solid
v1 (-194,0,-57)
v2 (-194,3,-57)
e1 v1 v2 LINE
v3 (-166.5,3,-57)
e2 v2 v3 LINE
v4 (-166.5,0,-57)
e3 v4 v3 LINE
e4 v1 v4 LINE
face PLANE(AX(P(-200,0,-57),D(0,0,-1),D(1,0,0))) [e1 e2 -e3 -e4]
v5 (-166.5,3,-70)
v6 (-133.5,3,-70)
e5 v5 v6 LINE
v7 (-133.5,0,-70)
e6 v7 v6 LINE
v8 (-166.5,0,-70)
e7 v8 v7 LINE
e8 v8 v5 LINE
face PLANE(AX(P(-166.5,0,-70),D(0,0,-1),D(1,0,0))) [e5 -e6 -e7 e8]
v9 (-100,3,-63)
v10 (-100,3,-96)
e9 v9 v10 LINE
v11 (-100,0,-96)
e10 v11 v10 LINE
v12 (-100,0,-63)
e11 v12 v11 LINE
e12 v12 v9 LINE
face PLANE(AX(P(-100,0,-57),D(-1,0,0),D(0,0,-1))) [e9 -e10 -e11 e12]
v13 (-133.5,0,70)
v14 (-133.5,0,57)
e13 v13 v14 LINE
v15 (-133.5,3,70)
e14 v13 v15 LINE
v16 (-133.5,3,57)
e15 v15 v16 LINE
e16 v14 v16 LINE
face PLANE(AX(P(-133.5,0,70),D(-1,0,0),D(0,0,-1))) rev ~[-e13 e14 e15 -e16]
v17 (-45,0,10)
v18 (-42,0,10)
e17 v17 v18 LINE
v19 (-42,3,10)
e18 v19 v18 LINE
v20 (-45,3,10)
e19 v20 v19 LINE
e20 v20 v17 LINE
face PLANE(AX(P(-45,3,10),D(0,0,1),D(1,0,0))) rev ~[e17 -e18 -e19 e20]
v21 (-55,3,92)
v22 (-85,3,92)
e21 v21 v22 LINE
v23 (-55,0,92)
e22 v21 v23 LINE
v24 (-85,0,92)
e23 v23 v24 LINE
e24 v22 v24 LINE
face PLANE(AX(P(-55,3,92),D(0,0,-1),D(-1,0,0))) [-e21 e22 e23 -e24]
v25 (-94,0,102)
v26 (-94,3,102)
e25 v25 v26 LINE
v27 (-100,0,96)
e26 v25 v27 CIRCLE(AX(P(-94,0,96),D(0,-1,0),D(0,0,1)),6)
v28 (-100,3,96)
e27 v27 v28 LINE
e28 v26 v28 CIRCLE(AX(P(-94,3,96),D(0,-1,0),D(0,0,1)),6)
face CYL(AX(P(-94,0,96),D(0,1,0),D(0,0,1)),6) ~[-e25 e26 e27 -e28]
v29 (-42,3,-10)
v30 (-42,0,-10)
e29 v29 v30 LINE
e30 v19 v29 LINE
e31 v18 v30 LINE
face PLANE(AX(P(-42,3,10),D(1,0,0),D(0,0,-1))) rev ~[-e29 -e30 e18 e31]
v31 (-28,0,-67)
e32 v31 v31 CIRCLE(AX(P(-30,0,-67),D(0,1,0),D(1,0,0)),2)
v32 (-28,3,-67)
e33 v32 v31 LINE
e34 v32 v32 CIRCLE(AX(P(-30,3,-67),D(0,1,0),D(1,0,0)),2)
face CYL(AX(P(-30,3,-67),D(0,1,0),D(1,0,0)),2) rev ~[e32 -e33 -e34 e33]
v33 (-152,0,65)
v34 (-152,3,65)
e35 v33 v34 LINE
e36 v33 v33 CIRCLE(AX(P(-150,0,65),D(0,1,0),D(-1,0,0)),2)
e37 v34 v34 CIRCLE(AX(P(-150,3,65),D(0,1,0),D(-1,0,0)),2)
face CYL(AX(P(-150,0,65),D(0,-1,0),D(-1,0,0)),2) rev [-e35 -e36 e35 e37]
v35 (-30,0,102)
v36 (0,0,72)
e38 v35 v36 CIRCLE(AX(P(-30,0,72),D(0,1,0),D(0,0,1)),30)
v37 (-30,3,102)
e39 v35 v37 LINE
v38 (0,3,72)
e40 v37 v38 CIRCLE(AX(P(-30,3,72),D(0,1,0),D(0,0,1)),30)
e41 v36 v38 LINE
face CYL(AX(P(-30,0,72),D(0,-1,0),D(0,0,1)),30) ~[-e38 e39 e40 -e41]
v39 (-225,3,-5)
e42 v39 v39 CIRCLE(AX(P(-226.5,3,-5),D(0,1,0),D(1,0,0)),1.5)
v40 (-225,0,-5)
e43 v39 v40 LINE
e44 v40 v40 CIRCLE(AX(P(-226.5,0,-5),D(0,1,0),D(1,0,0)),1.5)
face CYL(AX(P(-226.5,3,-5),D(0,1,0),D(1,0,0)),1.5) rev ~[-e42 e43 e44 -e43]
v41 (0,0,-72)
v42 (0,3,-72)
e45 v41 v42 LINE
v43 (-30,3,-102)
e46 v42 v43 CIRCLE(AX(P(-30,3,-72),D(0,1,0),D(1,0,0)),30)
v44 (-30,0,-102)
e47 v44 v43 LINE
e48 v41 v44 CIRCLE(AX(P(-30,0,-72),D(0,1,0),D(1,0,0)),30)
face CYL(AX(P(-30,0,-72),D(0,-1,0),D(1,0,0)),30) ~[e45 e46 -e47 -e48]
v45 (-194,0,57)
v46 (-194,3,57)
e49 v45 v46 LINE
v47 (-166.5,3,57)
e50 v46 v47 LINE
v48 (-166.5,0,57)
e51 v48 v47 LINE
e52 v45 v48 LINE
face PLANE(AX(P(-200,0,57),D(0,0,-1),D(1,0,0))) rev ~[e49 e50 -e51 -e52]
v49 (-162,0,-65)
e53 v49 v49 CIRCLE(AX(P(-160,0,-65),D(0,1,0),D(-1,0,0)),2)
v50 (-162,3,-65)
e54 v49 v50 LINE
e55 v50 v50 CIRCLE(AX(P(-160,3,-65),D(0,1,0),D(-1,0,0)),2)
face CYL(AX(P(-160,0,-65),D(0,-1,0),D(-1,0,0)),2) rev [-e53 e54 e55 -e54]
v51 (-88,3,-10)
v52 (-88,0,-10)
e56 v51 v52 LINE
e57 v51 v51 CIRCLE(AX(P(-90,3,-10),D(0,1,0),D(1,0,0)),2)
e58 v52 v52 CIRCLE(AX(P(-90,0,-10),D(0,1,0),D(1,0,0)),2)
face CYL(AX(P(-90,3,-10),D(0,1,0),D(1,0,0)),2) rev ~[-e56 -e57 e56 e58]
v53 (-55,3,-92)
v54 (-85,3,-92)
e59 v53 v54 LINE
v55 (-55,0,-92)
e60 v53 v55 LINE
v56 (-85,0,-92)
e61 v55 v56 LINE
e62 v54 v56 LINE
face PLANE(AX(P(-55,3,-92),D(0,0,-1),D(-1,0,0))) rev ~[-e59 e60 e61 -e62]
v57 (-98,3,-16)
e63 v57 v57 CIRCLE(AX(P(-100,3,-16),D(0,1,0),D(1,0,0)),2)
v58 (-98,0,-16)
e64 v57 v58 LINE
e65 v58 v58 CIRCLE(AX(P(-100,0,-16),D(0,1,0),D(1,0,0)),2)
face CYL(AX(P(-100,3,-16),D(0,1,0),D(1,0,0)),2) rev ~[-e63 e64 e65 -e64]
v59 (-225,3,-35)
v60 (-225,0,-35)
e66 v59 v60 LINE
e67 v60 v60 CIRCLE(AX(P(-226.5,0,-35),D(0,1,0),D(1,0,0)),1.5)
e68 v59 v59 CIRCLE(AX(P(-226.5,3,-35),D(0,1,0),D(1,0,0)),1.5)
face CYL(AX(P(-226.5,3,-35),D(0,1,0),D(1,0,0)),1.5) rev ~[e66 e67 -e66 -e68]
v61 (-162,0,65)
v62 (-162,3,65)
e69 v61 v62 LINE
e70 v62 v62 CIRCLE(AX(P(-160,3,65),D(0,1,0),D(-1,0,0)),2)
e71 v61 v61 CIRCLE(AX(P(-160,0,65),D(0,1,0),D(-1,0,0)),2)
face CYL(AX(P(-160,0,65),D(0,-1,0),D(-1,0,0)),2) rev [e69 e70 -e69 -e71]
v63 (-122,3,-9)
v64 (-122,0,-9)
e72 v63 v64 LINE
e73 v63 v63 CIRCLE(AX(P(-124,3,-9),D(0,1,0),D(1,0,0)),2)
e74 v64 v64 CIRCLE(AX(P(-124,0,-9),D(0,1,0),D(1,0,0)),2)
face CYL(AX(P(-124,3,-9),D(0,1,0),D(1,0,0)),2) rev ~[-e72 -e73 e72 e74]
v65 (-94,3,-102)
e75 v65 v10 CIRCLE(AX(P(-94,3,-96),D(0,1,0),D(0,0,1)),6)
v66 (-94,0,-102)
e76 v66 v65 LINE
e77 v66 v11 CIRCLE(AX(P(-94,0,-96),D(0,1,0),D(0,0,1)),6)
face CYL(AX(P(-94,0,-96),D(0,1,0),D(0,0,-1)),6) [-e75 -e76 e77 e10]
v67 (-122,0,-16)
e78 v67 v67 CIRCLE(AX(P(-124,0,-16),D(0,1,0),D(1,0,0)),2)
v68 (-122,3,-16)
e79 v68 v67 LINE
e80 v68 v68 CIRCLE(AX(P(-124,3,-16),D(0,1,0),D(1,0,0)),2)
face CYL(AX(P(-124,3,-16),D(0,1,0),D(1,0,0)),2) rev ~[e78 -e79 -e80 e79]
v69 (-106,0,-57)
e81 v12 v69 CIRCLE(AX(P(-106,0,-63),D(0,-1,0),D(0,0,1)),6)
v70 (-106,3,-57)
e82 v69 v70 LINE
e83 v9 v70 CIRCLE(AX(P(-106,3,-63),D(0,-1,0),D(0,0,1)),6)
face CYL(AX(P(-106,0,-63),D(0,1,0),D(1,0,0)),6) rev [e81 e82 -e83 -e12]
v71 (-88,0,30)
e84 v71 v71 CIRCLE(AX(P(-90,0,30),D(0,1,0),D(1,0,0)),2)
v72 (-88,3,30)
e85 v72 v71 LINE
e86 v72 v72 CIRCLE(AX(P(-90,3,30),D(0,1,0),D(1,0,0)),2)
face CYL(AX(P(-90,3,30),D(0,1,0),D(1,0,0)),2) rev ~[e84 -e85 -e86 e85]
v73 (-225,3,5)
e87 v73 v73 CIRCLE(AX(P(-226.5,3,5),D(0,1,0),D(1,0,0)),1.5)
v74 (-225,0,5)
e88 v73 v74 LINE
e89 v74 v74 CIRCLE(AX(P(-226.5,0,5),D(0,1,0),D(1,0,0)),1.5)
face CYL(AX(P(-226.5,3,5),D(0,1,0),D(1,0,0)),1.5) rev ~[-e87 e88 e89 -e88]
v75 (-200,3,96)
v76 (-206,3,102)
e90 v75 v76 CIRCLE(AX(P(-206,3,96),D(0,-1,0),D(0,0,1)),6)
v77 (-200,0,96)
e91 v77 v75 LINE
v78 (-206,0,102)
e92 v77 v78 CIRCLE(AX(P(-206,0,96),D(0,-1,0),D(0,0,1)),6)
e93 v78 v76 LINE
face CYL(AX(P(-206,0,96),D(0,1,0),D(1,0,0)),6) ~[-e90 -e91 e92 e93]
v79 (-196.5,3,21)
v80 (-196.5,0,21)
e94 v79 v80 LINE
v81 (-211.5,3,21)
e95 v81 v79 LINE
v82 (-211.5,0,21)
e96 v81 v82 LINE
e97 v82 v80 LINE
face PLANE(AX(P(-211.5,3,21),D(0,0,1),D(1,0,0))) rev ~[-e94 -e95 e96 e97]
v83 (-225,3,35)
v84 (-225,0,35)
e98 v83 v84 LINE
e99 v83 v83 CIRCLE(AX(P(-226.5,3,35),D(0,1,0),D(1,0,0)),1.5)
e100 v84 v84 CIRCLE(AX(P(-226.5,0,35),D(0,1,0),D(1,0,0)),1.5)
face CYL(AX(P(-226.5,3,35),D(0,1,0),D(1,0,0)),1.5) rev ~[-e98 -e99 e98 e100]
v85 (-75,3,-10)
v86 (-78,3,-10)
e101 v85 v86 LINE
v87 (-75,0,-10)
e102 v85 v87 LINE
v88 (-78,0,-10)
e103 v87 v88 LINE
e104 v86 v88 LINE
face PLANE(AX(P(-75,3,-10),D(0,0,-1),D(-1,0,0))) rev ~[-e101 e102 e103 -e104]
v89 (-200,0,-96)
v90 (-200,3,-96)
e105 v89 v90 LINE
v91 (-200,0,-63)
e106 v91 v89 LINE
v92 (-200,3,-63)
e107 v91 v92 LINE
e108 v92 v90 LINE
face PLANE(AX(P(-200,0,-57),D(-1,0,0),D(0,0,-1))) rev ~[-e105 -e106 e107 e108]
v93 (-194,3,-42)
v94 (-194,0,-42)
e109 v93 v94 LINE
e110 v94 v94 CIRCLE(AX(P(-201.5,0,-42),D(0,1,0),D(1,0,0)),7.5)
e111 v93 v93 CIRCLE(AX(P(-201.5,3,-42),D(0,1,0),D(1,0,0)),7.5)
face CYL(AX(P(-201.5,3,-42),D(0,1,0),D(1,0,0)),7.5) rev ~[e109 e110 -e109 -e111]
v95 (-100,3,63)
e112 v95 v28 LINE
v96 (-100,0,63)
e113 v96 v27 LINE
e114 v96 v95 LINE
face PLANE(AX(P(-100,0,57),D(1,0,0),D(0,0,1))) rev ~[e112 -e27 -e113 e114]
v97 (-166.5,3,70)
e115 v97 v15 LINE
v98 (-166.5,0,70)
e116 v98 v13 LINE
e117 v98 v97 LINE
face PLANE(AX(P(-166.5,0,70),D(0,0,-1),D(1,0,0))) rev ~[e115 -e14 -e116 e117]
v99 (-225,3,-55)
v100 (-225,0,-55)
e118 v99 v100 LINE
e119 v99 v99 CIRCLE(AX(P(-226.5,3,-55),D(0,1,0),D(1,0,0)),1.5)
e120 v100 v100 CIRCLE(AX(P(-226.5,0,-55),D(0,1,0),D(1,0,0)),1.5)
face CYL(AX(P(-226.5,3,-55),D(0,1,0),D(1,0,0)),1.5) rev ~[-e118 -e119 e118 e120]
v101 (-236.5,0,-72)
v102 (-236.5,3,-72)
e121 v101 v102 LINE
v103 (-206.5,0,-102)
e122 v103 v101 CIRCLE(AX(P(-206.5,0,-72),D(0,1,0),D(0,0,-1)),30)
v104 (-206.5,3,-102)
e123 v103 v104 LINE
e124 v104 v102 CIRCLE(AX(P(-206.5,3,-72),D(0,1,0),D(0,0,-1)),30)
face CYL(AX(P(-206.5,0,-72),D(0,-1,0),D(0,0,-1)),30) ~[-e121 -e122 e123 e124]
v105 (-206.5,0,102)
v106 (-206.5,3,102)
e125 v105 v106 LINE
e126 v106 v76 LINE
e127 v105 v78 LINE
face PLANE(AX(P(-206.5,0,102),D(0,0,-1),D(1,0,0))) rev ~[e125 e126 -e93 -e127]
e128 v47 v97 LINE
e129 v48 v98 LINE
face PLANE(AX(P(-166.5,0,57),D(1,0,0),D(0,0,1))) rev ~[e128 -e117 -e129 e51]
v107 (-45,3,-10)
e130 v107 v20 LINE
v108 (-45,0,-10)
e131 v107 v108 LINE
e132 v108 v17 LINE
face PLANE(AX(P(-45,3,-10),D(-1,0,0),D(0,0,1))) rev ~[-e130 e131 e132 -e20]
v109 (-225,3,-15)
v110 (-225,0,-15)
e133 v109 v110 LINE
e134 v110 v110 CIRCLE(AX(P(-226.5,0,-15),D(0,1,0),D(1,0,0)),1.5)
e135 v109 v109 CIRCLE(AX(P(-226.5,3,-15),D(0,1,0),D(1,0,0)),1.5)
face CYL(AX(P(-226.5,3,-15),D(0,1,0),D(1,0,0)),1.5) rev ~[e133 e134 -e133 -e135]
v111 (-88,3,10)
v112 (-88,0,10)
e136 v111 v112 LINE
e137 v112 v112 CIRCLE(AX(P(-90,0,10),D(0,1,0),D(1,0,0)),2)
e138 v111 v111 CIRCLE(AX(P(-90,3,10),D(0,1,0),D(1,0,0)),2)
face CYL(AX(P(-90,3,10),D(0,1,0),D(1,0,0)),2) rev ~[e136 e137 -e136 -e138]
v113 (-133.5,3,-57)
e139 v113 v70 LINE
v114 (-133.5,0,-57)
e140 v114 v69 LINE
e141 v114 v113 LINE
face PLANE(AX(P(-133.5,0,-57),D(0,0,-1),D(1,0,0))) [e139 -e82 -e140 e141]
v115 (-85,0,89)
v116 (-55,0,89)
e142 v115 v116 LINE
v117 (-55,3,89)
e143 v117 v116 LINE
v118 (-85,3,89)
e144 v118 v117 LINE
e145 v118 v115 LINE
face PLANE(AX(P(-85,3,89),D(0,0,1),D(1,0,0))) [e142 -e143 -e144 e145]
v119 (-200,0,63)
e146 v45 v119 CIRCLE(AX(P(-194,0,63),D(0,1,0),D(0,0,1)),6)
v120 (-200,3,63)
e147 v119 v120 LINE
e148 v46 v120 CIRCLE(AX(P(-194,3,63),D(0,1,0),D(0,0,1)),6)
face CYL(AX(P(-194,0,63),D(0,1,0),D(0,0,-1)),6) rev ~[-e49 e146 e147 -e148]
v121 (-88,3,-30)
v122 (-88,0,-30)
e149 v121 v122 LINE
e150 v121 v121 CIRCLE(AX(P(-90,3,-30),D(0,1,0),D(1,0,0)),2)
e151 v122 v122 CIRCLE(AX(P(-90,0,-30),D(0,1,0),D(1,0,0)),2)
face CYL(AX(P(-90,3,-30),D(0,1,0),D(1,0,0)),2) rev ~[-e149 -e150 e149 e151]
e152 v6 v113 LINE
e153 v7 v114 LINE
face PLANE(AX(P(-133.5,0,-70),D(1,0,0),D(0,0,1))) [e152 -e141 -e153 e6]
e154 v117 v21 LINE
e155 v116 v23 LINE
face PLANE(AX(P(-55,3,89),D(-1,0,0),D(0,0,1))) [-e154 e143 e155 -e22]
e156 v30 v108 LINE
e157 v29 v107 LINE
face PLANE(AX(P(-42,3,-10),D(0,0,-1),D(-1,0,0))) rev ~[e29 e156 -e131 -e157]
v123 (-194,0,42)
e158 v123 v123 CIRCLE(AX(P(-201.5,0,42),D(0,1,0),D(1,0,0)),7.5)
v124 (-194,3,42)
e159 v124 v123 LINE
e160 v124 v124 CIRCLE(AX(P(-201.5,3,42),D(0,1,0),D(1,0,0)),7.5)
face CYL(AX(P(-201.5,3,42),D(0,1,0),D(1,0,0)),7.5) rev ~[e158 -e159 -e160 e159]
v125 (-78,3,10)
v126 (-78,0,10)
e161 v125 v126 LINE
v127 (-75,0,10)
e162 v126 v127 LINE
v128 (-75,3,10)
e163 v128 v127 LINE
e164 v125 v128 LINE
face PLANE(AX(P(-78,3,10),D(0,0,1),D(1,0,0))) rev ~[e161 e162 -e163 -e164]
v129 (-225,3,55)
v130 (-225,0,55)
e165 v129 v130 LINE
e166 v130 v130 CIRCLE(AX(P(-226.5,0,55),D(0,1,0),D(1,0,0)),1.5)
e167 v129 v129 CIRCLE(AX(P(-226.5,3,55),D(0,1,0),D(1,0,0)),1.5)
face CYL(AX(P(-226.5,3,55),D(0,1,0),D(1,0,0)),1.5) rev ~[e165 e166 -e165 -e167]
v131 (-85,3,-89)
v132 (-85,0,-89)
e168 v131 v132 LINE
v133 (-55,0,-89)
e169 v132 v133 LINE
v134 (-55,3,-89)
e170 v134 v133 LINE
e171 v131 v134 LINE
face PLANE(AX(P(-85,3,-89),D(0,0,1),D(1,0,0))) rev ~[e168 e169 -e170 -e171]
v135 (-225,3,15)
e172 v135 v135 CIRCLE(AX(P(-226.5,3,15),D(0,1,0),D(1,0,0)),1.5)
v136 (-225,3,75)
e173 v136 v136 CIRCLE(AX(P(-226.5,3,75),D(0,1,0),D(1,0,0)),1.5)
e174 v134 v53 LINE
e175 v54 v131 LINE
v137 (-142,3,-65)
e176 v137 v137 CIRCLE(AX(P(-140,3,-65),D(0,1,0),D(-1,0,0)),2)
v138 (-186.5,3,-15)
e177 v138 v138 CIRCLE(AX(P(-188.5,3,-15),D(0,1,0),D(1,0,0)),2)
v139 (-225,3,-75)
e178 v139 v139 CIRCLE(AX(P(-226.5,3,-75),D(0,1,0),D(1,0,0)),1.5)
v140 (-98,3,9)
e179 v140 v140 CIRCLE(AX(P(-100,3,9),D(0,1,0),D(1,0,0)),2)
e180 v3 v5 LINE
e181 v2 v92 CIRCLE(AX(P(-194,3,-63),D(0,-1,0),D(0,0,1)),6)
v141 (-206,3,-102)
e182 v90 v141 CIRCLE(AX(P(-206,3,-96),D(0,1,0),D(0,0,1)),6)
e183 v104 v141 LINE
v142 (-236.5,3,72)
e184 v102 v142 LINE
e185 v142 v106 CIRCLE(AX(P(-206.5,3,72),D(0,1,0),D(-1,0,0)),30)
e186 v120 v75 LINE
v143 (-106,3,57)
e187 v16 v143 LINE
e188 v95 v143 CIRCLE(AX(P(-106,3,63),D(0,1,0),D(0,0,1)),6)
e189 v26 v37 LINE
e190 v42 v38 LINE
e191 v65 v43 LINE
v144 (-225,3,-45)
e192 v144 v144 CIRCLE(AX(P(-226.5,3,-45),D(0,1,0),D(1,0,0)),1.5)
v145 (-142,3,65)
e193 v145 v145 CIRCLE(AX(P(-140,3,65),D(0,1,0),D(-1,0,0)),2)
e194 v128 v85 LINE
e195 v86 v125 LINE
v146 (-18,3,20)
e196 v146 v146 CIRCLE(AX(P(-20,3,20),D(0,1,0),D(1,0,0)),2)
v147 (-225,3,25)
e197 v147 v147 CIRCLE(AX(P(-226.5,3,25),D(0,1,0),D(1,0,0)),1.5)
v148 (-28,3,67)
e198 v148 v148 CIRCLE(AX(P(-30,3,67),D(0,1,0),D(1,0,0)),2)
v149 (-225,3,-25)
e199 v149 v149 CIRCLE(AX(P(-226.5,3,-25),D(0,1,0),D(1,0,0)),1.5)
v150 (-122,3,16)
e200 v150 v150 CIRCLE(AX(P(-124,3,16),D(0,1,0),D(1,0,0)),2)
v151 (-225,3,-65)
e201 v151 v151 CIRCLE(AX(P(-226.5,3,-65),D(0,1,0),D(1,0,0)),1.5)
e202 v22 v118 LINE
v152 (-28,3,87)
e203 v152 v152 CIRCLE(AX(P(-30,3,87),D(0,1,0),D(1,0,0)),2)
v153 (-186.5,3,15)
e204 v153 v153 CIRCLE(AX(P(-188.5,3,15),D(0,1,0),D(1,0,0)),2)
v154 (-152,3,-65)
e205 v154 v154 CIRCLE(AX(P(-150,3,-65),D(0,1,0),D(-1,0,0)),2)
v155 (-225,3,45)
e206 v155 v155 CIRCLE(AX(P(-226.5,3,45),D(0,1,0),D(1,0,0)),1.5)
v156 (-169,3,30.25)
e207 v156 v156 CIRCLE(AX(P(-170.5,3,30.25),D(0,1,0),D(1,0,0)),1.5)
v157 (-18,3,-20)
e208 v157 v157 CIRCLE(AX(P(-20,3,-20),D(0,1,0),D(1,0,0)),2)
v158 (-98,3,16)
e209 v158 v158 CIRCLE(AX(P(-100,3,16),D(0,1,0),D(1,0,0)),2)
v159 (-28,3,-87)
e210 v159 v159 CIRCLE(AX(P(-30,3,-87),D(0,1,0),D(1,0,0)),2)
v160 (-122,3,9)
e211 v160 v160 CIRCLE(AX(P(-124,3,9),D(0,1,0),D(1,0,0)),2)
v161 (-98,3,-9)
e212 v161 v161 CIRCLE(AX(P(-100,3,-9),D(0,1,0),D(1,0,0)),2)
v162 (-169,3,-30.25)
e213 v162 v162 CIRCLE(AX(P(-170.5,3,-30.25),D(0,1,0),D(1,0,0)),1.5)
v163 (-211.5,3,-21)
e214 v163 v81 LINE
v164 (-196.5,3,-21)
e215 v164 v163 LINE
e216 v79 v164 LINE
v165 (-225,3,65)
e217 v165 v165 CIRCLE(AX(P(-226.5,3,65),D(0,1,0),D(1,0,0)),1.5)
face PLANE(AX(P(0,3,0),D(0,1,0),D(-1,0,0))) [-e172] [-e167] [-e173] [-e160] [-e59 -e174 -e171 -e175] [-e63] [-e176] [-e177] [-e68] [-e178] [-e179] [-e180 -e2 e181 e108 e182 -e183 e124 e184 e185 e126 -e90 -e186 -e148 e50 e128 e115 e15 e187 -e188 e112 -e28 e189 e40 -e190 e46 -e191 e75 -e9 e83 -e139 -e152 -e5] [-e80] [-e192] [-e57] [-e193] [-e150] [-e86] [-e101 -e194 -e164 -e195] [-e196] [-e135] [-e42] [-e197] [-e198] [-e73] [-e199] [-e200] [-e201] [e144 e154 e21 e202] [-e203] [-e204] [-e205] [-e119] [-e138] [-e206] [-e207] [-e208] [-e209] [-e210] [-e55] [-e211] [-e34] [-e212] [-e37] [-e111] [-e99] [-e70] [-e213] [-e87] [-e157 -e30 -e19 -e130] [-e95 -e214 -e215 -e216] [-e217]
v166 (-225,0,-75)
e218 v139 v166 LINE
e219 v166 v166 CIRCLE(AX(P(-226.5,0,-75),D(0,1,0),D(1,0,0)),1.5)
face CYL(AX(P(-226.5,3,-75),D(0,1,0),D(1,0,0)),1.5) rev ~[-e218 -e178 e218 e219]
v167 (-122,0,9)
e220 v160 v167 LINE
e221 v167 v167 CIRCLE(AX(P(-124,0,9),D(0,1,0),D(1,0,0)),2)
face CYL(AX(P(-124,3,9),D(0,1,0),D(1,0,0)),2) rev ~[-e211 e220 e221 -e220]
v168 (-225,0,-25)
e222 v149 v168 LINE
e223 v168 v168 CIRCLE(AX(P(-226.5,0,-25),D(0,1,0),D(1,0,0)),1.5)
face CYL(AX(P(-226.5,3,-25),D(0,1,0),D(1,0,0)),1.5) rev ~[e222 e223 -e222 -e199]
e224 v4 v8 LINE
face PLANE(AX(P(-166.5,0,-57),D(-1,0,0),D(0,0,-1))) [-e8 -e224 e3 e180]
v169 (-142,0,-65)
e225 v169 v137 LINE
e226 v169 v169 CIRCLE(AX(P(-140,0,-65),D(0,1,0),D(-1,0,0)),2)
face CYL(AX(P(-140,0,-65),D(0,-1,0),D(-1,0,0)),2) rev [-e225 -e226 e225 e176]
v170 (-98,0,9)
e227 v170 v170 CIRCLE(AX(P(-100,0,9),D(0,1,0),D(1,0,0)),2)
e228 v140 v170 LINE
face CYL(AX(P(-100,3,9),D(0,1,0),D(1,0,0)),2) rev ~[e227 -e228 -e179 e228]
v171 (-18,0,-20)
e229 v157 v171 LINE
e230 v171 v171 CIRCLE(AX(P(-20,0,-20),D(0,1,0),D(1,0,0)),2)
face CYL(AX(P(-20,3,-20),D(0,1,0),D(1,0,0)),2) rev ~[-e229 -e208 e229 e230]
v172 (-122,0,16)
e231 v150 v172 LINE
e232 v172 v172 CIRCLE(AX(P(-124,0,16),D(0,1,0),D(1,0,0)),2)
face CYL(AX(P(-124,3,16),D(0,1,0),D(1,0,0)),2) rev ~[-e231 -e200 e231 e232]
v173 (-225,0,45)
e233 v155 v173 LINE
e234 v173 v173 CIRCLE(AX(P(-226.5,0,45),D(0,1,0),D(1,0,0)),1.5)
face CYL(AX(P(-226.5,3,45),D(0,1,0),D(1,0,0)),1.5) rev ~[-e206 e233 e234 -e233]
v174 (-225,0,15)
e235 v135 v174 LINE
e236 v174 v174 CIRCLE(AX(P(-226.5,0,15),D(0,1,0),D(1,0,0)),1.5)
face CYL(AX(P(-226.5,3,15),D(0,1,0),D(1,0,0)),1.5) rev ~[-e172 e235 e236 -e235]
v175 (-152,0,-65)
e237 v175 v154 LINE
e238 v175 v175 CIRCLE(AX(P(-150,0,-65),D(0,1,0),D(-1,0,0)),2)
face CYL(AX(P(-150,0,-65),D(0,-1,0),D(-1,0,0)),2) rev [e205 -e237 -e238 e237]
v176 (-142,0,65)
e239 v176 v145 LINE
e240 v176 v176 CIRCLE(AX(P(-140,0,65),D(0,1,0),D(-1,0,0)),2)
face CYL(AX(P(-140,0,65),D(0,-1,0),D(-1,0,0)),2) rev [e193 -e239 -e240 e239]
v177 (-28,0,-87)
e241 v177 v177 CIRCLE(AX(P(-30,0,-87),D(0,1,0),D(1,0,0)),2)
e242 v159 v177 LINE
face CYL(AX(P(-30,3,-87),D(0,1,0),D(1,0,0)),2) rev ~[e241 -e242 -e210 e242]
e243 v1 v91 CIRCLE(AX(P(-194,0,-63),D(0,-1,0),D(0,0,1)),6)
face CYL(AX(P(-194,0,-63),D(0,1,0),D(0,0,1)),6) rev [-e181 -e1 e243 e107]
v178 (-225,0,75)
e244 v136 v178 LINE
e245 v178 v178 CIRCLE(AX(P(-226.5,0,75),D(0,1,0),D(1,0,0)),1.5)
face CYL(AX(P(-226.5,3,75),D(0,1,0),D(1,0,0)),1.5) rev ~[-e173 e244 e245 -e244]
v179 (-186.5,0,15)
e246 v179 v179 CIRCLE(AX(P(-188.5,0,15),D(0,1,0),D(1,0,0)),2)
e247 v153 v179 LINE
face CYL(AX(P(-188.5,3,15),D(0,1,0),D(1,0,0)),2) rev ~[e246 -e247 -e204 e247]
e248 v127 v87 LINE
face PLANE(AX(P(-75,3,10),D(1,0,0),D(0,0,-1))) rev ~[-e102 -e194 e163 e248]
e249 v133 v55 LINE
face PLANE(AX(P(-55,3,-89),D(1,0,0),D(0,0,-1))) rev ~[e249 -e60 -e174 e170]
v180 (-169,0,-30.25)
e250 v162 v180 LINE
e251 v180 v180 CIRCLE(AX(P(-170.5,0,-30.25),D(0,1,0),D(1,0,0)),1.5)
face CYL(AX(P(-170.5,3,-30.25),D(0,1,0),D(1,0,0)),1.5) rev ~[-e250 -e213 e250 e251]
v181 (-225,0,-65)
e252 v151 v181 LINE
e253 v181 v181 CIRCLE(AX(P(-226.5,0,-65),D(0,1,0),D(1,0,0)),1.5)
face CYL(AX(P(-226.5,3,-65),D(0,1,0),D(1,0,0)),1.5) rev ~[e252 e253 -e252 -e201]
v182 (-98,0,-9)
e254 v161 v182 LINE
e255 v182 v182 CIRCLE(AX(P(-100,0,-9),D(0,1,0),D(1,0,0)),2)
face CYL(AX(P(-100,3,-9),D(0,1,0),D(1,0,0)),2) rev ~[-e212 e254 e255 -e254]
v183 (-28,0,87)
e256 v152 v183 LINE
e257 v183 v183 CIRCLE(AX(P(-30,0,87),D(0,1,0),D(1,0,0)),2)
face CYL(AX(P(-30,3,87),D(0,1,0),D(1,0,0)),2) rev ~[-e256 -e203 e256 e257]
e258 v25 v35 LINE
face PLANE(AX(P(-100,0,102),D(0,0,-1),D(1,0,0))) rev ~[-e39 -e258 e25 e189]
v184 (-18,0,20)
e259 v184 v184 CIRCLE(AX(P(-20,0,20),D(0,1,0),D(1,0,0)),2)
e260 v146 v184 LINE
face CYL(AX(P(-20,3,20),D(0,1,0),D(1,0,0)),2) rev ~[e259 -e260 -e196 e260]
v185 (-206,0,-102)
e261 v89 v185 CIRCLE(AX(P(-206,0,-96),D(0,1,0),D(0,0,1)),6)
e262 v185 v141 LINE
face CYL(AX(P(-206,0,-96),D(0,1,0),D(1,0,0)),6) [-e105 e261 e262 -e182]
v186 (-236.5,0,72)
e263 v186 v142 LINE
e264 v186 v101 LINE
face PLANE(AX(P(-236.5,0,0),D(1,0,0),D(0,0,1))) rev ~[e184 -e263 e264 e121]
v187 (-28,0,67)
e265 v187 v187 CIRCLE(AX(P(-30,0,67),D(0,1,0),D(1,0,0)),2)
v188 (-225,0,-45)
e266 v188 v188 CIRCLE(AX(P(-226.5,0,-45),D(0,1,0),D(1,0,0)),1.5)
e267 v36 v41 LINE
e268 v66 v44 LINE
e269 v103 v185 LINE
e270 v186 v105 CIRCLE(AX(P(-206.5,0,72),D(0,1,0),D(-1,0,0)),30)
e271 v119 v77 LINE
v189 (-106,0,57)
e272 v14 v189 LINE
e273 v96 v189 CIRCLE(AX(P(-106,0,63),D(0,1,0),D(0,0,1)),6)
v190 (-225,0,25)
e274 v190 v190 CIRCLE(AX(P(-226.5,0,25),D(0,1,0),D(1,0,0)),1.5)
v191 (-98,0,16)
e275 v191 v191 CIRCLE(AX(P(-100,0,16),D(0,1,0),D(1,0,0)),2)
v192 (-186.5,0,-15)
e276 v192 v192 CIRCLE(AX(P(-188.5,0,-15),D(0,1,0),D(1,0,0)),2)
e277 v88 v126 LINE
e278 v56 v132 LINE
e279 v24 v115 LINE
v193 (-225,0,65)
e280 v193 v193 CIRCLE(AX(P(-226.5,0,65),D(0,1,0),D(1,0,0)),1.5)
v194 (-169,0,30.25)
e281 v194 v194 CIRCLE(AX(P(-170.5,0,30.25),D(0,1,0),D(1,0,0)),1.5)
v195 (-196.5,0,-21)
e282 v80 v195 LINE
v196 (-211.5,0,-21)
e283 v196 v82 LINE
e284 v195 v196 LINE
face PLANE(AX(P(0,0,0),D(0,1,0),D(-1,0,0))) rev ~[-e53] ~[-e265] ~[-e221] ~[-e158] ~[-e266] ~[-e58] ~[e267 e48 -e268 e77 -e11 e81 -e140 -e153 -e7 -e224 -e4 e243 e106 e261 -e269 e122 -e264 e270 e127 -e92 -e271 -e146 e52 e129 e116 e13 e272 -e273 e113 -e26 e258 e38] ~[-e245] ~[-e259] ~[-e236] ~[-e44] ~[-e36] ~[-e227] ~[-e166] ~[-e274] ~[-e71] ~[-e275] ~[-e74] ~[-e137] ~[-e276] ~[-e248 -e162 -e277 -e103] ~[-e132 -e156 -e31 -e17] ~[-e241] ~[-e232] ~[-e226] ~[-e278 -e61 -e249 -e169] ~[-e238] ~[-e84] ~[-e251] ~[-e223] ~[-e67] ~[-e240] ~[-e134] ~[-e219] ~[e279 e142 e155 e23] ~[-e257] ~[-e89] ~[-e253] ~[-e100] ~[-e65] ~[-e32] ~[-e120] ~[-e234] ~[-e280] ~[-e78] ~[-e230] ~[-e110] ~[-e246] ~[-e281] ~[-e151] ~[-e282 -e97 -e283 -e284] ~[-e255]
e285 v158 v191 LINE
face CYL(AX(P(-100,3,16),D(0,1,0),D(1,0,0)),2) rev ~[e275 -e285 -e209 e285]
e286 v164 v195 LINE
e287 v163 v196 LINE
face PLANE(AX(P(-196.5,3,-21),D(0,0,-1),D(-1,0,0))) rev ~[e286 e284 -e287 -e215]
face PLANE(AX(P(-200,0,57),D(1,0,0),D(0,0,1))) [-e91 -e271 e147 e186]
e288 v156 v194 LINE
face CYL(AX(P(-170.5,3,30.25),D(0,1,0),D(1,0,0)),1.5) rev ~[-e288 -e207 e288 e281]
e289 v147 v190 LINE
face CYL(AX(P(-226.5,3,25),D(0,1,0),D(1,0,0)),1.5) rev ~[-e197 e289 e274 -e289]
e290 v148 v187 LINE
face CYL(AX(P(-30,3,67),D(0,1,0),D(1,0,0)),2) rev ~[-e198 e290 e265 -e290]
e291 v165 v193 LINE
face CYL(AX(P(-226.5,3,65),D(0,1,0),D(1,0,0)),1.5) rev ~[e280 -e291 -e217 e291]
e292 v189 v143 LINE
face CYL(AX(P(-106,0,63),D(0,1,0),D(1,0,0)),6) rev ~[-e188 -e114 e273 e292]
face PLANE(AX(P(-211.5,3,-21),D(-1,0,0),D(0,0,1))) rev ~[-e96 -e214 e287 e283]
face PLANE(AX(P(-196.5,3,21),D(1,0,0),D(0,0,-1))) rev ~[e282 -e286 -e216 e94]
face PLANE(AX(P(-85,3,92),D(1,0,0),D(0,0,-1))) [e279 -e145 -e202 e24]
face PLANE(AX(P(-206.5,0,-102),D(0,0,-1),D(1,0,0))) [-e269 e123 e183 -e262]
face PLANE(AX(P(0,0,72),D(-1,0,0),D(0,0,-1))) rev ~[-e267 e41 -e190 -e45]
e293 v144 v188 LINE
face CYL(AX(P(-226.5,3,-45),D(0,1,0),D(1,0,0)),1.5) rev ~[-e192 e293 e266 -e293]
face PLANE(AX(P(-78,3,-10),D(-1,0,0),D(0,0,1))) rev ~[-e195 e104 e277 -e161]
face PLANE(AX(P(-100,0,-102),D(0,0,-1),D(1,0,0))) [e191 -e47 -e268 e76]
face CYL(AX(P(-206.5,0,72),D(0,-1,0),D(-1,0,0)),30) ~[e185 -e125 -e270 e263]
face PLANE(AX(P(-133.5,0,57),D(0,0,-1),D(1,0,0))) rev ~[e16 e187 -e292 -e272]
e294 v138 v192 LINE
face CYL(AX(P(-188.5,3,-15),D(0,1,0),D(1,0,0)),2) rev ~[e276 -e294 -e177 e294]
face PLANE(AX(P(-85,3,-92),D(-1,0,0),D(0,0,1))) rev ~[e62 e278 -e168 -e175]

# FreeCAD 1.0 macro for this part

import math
import FreeCAD as App
import Part
import Sketcher
from FreeCAD import Vector
Q = App.Units.Quantity


def edges_at(feature, points):
    """Names of the edges that pass closest to the given points."""
    edges = feature.Shape.Edges
    near = lambda p: min(range(len(edges)), key=lambda i: edges[i].distToShape(Part.Vertex(*p))[0])
    return sorted({f"Edge{near(p) + 1}" for p in points})

doc = App.newDocument("Part")
body = doc.addObject("PartDesign::Body", "Body")

# Sketch on XZ plane
sketch1 = doc.addObject("Sketcher::SketchObject", "Sketch")
body.addObject(sketch1)
sketch1.AttachmentSupport = (doc.XZ_Plane, [""])
sketch1.MapMode = "FlatFace"
sketch1.addGeometry([
    Part.ArcOfCircle(Part.Circle(Vector(-30, 72, 0), Vector(0, 0, 1), 30), math.radians(0), math.radians(90)),  # 0
    Part.LineSegment(Vector(0, 72, 0), Vector(0, -72, 0)),  # 1
    Part.ArcOfCircle(Part.Circle(Vector(-30, -72, 0), Vector(0, 0, 1), 30), math.radians(-90), math.radians(0)),  # 2
    Part.LineSegment(Vector(-30, -102, 0), Vector(-100, -102, 0)),  # 3
    Part.LineSegment(Vector(-100, -102, 0), Vector(-100, -57, 0)),  # 4
    Part.LineSegment(Vector(-100, -57, 0), Vector(-133.5, -57, 0)),  # 5
    Part.LineSegment(Vector(-133.5, -57, 0), Vector(-133.5, -70, 0)),  # 6
    Part.LineSegment(Vector(-133.5, -70, 0), Vector(-166.5, -70, 0)),  # 7
    Part.LineSegment(Vector(-166.5, -70, 0), Vector(-166.5, -57, 0)),  # 8
    Part.LineSegment(Vector(-166.5, -57, 0), Vector(-200, -57, 0)),  # 9
    Part.LineSegment(Vector(-200, -57, 0), Vector(-200, -102, 0)),  # 10
    Part.LineSegment(Vector(-200, -102, 0), Vector(-206.5, -102, 0)),  # 11
    Part.ArcOfCircle(Part.Circle(Vector(-206.5, -72, 0), Vector(0, 0, 1), 30), math.radians(180), math.radians(270)),  # 12
    Part.LineSegment(Vector(-236.5, -72, 0), Vector(-236.5, 72, 0)),  # 13
    Part.ArcOfCircle(Part.Circle(Vector(-206.5, 72, 0), Vector(0, 0, 1), 30), math.radians(90), math.radians(180)),  # 14
    Part.LineSegment(Vector(-206.5, 102, 0), Vector(-200, 102, 0)),  # 15
    Part.LineSegment(Vector(-200, 102, 0), Vector(-200, 57, 0)),  # 16
    Part.LineSegment(Vector(-200, 57, 0), Vector(-166.5, 57, 0)),  # 17
    Part.LineSegment(Vector(-166.5, 57, 0), Vector(-166.5, 70, 0)),  # 18
    Part.LineSegment(Vector(-166.5, 70, 0), Vector(-133.5, 70, 0)),  # 19
    Part.LineSegment(Vector(-133.5, 70, 0), Vector(-133.5, 57, 0)),  # 20
    Part.LineSegment(Vector(-133.5, 57, 0), Vector(-100, 57, 0)),  # 21
    Part.LineSegment(Vector(-100, 57, 0), Vector(-100, 102, 0)),  # 22
    Part.LineSegment(Vector(-100, 102, 0), Vector(-30, 102, 0)),  # 23
    Part.Circle(Vector(-140, -65, 0), Vector(0, 0, 1), 2),  # 24
    Part.Circle(Vector(-150, -65, 0), Vector(0, 0, 1), 2),  # 25
    Part.Circle(Vector(-160, -65, 0), Vector(0, 0, 1), 2),  # 26
    Part.Circle(Vector(-140, 65, 0), Vector(0, 0, 1), 2),  # 27
    Part.Circle(Vector(-150, 65, 0), Vector(0, 0, 1), 2),  # 28
    Part.Circle(Vector(-160, 65, 0), Vector(0, 0, 1), 2),  # 29
], False)
sketch1.addConstraint([
    Sketcher.Constraint("Tangent", 0, 1, 1, 1),
    Sketcher.Constraint("Tangent", 1, 2, 2, 2),
    Sketcher.Constraint("Tangent", 2, 1, 3, 1),
    Sketcher.Constraint("Coincident", 3, 2, 4, 1),
    Sketcher.Constraint("Coincident", 4, 2, 5, 1),
    Sketcher.Constraint("Coincident", 5, 2, 6, 1),
    Sketcher.Constraint("Coincident", 6, 2, 7, 1),
    Sketcher.Constraint("Coincident", 7, 2, 8, 1),
    Sketcher.Constraint("Coincident", 8, 2, 9, 1),
    Sketcher.Constraint("Coincident", 9, 2, 10, 1),
    Sketcher.Constraint("Coincident", 10, 2, 11, 1),
    Sketcher.Constraint("Tangent", 11, 2, 12, 2),
    Sketcher.Constraint("Tangent", 12, 1, 13, 1),
    Sketcher.Constraint("Tangent", 13, 2, 14, 2),
    Sketcher.Constraint("Tangent", 14, 1, 15, 1),
    Sketcher.Constraint("Coincident", 15, 2, 16, 1),
    Sketcher.Constraint("Coincident", 16, 2, 17, 1),
    Sketcher.Constraint("Coincident", 17, 2, 18, 1),
    Sketcher.Constraint("Coincident", 18, 2, 19, 1),
    Sketcher.Constraint("Coincident", 19, 2, 20, 1),
    Sketcher.Constraint("Coincident", 20, 2, 21, 1),
    Sketcher.Constraint("Coincident", 21, 2, 22, 1),
    Sketcher.Constraint("Coincident", 22, 2, 23, 1),
    Sketcher.Constraint("Tangent", 23, 2, 0, 2),
    Sketcher.Constraint("Vertical", 1),
    Sketcher.Constraint("Horizontal", 3),
    Sketcher.Constraint("Vertical", 4),
    Sketcher.Constraint("Horizontal", 5),
    Sketcher.Constraint("Vertical", 6),
    Sketcher.Constraint("Horizontal", 7),
    Sketcher.Constraint("Vertical", 8),
    Sketcher.Constraint("Horizontal", 9),
    Sketcher.Constraint("Vertical", 10),
    Sketcher.Constraint("Horizontal", 11),
    Sketcher.Constraint("Vertical", 13),
    Sketcher.Constraint("Horizontal", 15),
    Sketcher.Constraint("Vertical", 16),
    Sketcher.Constraint("Horizontal", 17),
    Sketcher.Constraint("Vertical", 18),
    Sketcher.Constraint("Horizontal", 19),
    Sketcher.Constraint("Vertical", 20),
    Sketcher.Constraint("Horizontal", 21),
    Sketcher.Constraint("Vertical", 22),
    Sketcher.Constraint("Horizontal", 23),
    Sketcher.Constraint("Equal", 0, 2),
    Sketcher.Constraint("Equal", 2, 12),
    Sketcher.Constraint("Equal", 12, 14),
    Sketcher.Constraint("Equal", 24, 25),
    Sketcher.Constraint("Equal", 25, 26),
    Sketcher.Constraint("Equal", 26, 27),
    Sketcher.Constraint("Equal", 27, 28),
    Sketcher.Constraint("Equal", 28, 29),
    Sketcher.Constraint("Symmetric", 0, 1, 1, 2, -1, 1),
    Sketcher.Constraint("Symmetric", 24, 3, 27, 3, -1),
    Sketcher.Constraint("Symmetric", 25, 3, 28, 3, -1),
    Sketcher.Constraint("Symmetric", 26, 3, 29, 3, -1),
    Sketcher.Constraint("Symmetric", 10, 2, 15, 2, -1),
    Sketcher.Constraint("Symmetric", 8, 2, 17, 2, -1),
    Sketcher.Constraint("Symmetric", 6, 2, 19, 2, -1),
    Sketcher.Constraint("Symmetric", 4, 2, 21, 2, -1),
    Sketcher.Constraint("Horizontal", 2, 3, 12, 3),
    Sketcher.Constraint("Horizontal", 24, 3, 25, 3),
    Sketcher.Constraint("Horizontal", 25, 3, 26, 3),
    Sketcher.Constraint("Horizontal", 5, 2, 8, 2),
    Sketcher.Constraint("Equal", 5, 9),
    Sketcher.Constraint("Diameter", 24, Q("4 mm")),
    Sketcher.Constraint("Radius", 0, Q("30 mm")),
    Sketcher.Constraint("DistanceX", 3, 2, 3, 1, Q("70 mm")),
    Sketcher.Constraint("DistanceX", 7, 2, 7, 1, Q("33 mm")),
    Sketcher.Constraint("DistanceY", 4, 1, 4, 2, Q("45 mm")),
    Sketcher.Constraint("DistanceY", 6, 2, 6, 1, Q("13 mm")),
    Sketcher.Constraint("DistanceY", 24, 3, -1, 1, Q("65 mm")),
    Sketcher.Constraint("DistanceY", 6, 2, -1, 1, Q("70 mm")),
    Sketcher.Constraint("DistanceX", 25, 3, 24, 3, Q("10 mm")),
    Sketcher.Constraint("DistanceX", 26, 3, 25, 3, Q("10 mm")),
    Sketcher.Constraint("DistanceX", 25, 3, 3, 2, Q("50 mm")),
    Sketcher.Constraint("DistanceX", 9, 2, 25, 3, Q("50 mm")),
    Sketcher.Constraint("DistanceX", 12, 1, 7, 2, Q("70 mm")),
])
pad1 = doc.addObject("PartDesign::Pad", "Pad")
body.addObject(pad1)
pad1.Profile = sketch1
pad1.Length = 3
pad1.Reversed = True

# Sketch on XZ plane
sketch2 = doc.addObject("Sketcher::SketchObject", "Sketch001")
body.addObject(sketch2)
sketch2.AttachmentSupport = (doc.XZ_Plane, [""])
sketch2.MapMode = "FlatFace"
sketch2.AttachmentOffset = App.Placement(Vector(0, 0, -3), App.Rotation())
sketch2.addGeometry([
    Part.Circle(Vector(-20, 20, 0), Vector(0, 0, 1), 2),
    Part.Circle(Vector(-20, -20, 0), Vector(0, 0, 1), 2),
], False)
sketch2.addConstraint([
    Sketcher.Constraint("Equal", 0, 1),
    Sketcher.Constraint("Symmetric", 0, 3, 1, 3, -1),
    Sketcher.Constraint("Diameter", 0, Q("4 mm")),
    Sketcher.Constraint("DistanceX", 0, 3, -1, 1, Q("20 mm")),
    Sketcher.Constraint("DistanceY", -1, 1, 0, 3, Q("20 mm")),
])
pocket1 = doc.addObject("PartDesign::Pocket", "Pocket")
body.addObject(pocket1)
pocket1.Profile = sketch2
pocket1.Length = 4
pocket1.Reversed = True

# Sketch on XZ plane
sketch3 = doc.addObject("Sketcher::SketchObject", "Sketch002")
body.addObject(sketch3)
sketch3.AttachmentSupport = (doc.XZ_Plane, [""])
sketch3.MapMode = "FlatFace"
sketch3.AttachmentOffset = App.Placement(Vector(0, 0, -3), App.Rotation())
sketch3.addGeometry([
    Part.LineSegment(Vector(-211.5, -21, 0), Vector(-211.5, 21, 0)),  # 0
    Part.LineSegment(Vector(-211.5, 21, 0), Vector(-196.5, 21, 0)),  # 1
    Part.LineSegment(Vector(-196.5, 21, 0), Vector(-196.5, -21, 0)),  # 2
    Part.LineSegment(Vector(-196.5, -21, 0), Vector(-211.5, -21, 0)),  # 3
    Part.Circle(Vector(-188.5, 15, 0), Vector(0, 0, 1), 2),  # 4
    Part.Circle(Vector(-188.5, -15, 0), Vector(0, 0, 1), 2),  # 5
], False)
sketch3.addConstraint([
    Sketcher.Constraint("Coincident", 0, 2, 1, 1),
    Sketcher.Constraint("Coincident", 1, 2, 2, 1),
    Sketcher.Constraint("Coincident", 2, 2, 3, 1),
    Sketcher.Constraint("Coincident", 3, 2, 0, 1),
    Sketcher.Constraint("Vertical", 0),
    Sketcher.Constraint("Horizontal", 1),
    Sketcher.Constraint("Vertical", 2),
    Sketcher.Constraint("Horizontal", 3),
    Sketcher.Constraint("Equal", 4, 5),
    Sketcher.Constraint("Symmetric", 4, 3, 5, 3, -1),
    Sketcher.Constraint("Diameter", 4, Q("4 mm")),
    Sketcher.Constraint("DistanceX", 1, 1, 1, 2, Q("15 mm")),
    Sketcher.Constraint("DistanceY", 0, 1, 0, 2, Q("42 mm")),
    Sketcher.Constraint("DistanceY", -1, 1, 4, 3, Q("15 mm")),
    Sketcher.Constraint("DistanceY", -1, 1, 0, 2, Q("21 mm")),
    Sketcher.Constraint("DistanceX", 1, 2, 4, 3, Q("8 mm")),
    Sketcher.Constraint("DistanceX", 4, 3, -1, 1, Q("188.5 mm")),
])
pocket2 = doc.addObject("PartDesign::Pocket", "Pocket001")
body.addObject(pocket2)
pocket2.Profile = sketch3
pocket2.Length = 4
pocket2.Reversed = True

# Sketch on XZ plane
sketch4 = doc.addObject("Sketcher::SketchObject", "Sketch003")
body.addObject(sketch4)
sketch4.AttachmentSupport = (doc.XZ_Plane, [""])
sketch4.MapMode = "FlatFace"
sketch4.AttachmentOffset = App.Placement(Vector(0, 0, -3), App.Rotation())
sketch4.addGeometry([
    Part.Circle(Vector(-100, 16, 0), Vector(0, 0, 1), 2),  # 0
    Part.Circle(Vector(-226.5, 5, 0), Vector(0, 0, 1), 1.5),  # 1
    Part.Circle(Vector(-226.5, 15, 0), Vector(0, 0, 1), 1.5),  # 2
    Part.Circle(Vector(-226.5, 25, 0), Vector(0, 0, 1), 1.5),  # 3
    Part.Circle(Vector(-226.5, 35, 0), Vector(0, 0, 1), 1.5),  # 4
    Part.Circle(Vector(-226.5, 45, 0), Vector(0, 0, 1), 1.5),  # 5
    Part.Circle(Vector(-226.5, 55, 0), Vector(0, 0, 1), 1.5),  # 6
    Part.Circle(Vector(-226.5, 65, 0), Vector(0, 0, 1), 1.5),  # 7
    Part.Circle(Vector(-226.5, 75, 0), Vector(0, 0, 1), 1.5),  # 8
    Part.Circle(Vector(-226.5, -5, 0), Vector(0, 0, 1), 1.5),  # 9
    Part.Circle(Vector(-226.5, -15, 0), Vector(0, 0, 1), 1.5),  # 10
    Part.Circle(Vector(-226.5, -25, 0), Vector(0, 0, 1), 1.5),  # 11
    Part.Circle(Vector(-226.5, -35, 0), Vector(0, 0, 1), 1.5),  # 12
    Part.Circle(Vector(-226.5, -45, 0), Vector(0, 0, 1), 1.5),  # 13
    Part.Circle(Vector(-226.5, -55, 0), Vector(0, 0, 1), 1.5),  # 14
    Part.Circle(Vector(-226.5, -65, 0), Vector(0, 0, 1), 1.5),  # 15
    Part.Circle(Vector(-226.5, -75, 0), Vector(0, 0, 1), 1.5),  # 16
    Part.LineSegment(Vector(-78, -10, 0), Vector(-78, 10, 0)),  # 17
    Part.LineSegment(Vector(-78, 10, 0), Vector(-75, 10, 0)),  # 18
    Part.LineSegment(Vector(-75, 10, 0), Vector(-75, -10, 0)),  # 19
    Part.LineSegment(Vector(-75, -10, 0), Vector(-78, -10, 0)),  # 20
    Part.LineSegment(Vector(-45, -10, 0), Vector(-45, 10, 0)),  # 21
    Part.LineSegment(Vector(-45, 10, 0), Vector(-42, 10, 0)),  # 22
    Part.LineSegment(Vector(-42, 10, 0), Vector(-42, -10, 0)),  # 23
    Part.LineSegment(Vector(-42, -10, 0), Vector(-45, -10, 0)),  # 24
    Part.Circle(Vector(-100, -16, 0), Vector(0, 0, 1), 2),  # 25
    Part.Circle(Vector(-100, -9, 0), Vector(0, 0, 1), 2),  # 26
    Part.Circle(Vector(-100, 9, 0), Vector(0, 0, 1), 2),  # 27
    Part.Circle(Vector(-124, 16, 0), Vector(0, 0, 1), 2),  # 28
    Part.Circle(Vector(-124, 9, 0), Vector(0, 0, 1), 2),  # 29
    Part.Circle(Vector(-124, -9, 0), Vector(0, 0, 1), 2),  # 30
    Part.Circle(Vector(-124, -16, 0), Vector(0, 0, 1), 2),  # 31
    Part.Circle(Vector(-170.5, -30.2, 0), Vector(0, 0, 1), 1.5),  # 32
    Part.Circle(Vector(-170.5, 30.2, 0), Vector(0, 0, 1), 1.5),  # 33
], False)
sketch4.addConstraint([
    Sketcher.Constraint("Coincident", 17, 2, 18, 1),
    Sketcher.Constraint("Coincident", 18, 2, 19, 1),
    Sketcher.Constraint("Coincident", 19, 2, 20, 1),
    Sketcher.Constraint("Coincident", 20, 2, 17, 1),
    Sketcher.Constraint("Coincident", 21, 2, 22, 1),
    Sketcher.Constraint("Coincident", 22, 2, 23, 1),
    Sketcher.Constraint("Coincident", 23, 2, 24, 1),
    Sketcher.Constraint("Coincident", 24, 2, 21, 1),
    Sketcher.Constraint("Vertical", 17),
    Sketcher.Constraint("Horizontal", 18),
    Sketcher.Constraint("Vertical", 19),
    Sketcher.Constraint("Horizontal", 20),
    Sketcher.Constraint("Vertical", 21),
    Sketcher.Constraint("Horizontal", 22),
    Sketcher.Constraint("Vertical", 23),
    Sketcher.Constraint("Horizontal", 24),
    Sketcher.Constraint("Equal", 1, 2),
    Sketcher.Constraint("Equal", 2, 3),
    Sketcher.Constraint("Equal", 3, 4),
    Sketcher.Constraint("Equal", 4, 5),
    Sketcher.Constraint("Equal", 5, 6),
    Sketcher.Constraint("Equal", 6, 7),
    Sketcher.Constraint("Equal", 7, 8),
    Sketcher.Constraint("Equal", 8, 9),
    Sketcher.Constraint("Equal", 9, 10),
    Sketcher.Constraint("Equal", 10, 11),
    Sketcher.Constraint("Equal", 11, 12),
    Sketcher.Constraint("Equal", 12, 13),
    Sketcher.Constraint("Equal", 13, 14),
    Sketcher.Constraint("Equal", 14, 15),
    Sketcher.Constraint("Equal", 15, 16),
    Sketcher.Constraint("Equal", 0, 25),
    Sketcher.Constraint("Equal", 25, 26),
    Sketcher.Constraint("Equal", 26, 27),
    Sketcher.Constraint("Equal", 27, 28),
    Sketcher.Constraint("Equal", 28, 29),
    Sketcher.Constraint("Equal", 29, 30),
    Sketcher.Constraint("Equal", 30, 31),
    Sketcher.Constraint("Equal", 16, 32),
    Sketcher.Constraint("Equal", 32, 33),
    Sketcher.Constraint("Symmetric", 1, 3, 9, 3, -1),
    Sketcher.Constraint("Symmetric", 2, 3, 10, 3, -1),
    Sketcher.Constraint("Symmetric", 3, 3, 11, 3, -1),
    Sketcher.Constraint("Symmetric", 4, 3, 12, 3, -1),
    Sketcher.Constraint("Symmetric", 5, 3, 13, 3, -1),
    Sketcher.Constraint("Symmetric", 6, 3, 14, 3, -1),
    Sketcher.Constraint("Symmetric", 7, 3, 15, 3, -1),
    Sketcher.Constraint("Symmetric", 8, 3, 16, 3, -1),
    Sketcher.Constraint("Symmetric", 0, 3, 25, 3, -1),
    Sketcher.Constraint("Symmetric", 26, 3, 27, 3, -1),
    Sketcher.Constraint("Symmetric", 29, 3, 30, 3, -1),
    Sketcher.Constraint("Symmetric", 28, 3, 31, 3, -1),
    Sketcher.Constraint("Symmetric", 32, 3, 33, 3, -1),
    Sketcher.Constraint("Horizontal", 0, 3, 28, 3),
    Sketcher.Constraint("Horizontal", 27, 3, 29, 3),
    Sketcher.Constraint("Horizontal", 18, 2, 21, 2),
    Sketcher.Constraint("Horizontal", 20, 2, 23, 2),
    Sketcher.Constraint("Vertical", 1, 3, 2, 3),
    Sketcher.Constraint("Vertical", 2, 3, 3, 3),
    Sketcher.Constraint("Vertical", 3, 3, 4, 3),
    Sketcher.Constraint("Vertical", 4, 3, 5, 3),
    Sketcher.Constraint("Vertical", 5, 3, 6, 3),
    Sketcher.Constraint("Vertical", 6, 3, 7, 3),
    Sketcher.Constraint("Vertical", 7, 3, 8, 3),
    Sketcher.Constraint("Vertical", 25, 3, 26, 3),
    Sketcher.Constraint("Vertical", 28, 3, 29, 3),
    Sketcher.Constraint("Equal", 20, 22),
    Sketcher.Constraint("Diameter", 0, Q("4 mm")),
    Sketcher.Constraint("Diameter", 1, Q("3 mm")),
    Sketcher.Constraint("DistanceX", 18, 1, 18, 2, Q("3 mm")),
    Sketcher.Constraint("DistanceY", 17, 1, 17, 2, Q("20 mm")),
    Sketcher.Constraint("DistanceY", -1, 1, 0, 3, Q("16 mm")),
    Sketcher.Constraint("DistanceY", -1, 1, 1, 3, Q("5 mm")),
    Sketcher.Constraint("DistanceY", -1, 1, 3, 3, Q("25 mm")),
    Sketcher.Constraint("DistanceY", -1, 1, 17, 2, Q("10 mm")),
    Sketcher.Constraint("DistanceX", 22, 2, -1, 1, Q("42 mm")),
    Sketcher.Constraint("DistanceY", 1, 3, 2, 3, Q("10 mm")),
    Sketcher.Constraint("DistanceY", 3, 3, 4, 3, Q("10 mm")),
    Sketcher.Constraint("DistanceY", 4, 3, 5, 3, Q("10 mm")),
    Sketcher.Constraint("DistanceY", 5, 3, 6, 3, Q("10 mm")),
    Sketcher.Constraint("DistanceY", 6, 3, 7, 3, Q("10 mm")),
    Sketcher.Constraint("DistanceY", 7, 3, 8, 3, Q("10 mm")),
    Sketcher.Constraint("DistanceY", 26, 3, 0, 3, Q("25 mm")),
    Sketcher.Constraint("DistanceX", 28, 3, 0, 3, Q("24 mm")),
    Sketcher.Constraint("DistanceX", 27, 3, 17, 2, Q("22 mm")),
    Sketcher.Constraint("DistanceX", 17, 2, 21, 2, Q("33 mm")),
    Sketcher.Constraint("DistanceY", 32, 3, -1, 1, Q("30.25 mm")),
    Sketcher.Constraint("DistanceX", 12, 3, 32, 3, Q("56 mm")),
    Sketcher.Constraint("DistanceX", 1, 3, -1, 1, Q("226.5 mm")),
])
pocket3 = doc.addObject("PartDesign::Pocket", "Pocket002")
body.addObject(pocket3)
pocket3.Profile = sketch4
pocket3.Length = 4
pocket3.Reversed = True

# Sketch on XZ plane
sketch5 = doc.addObject("Sketcher::SketchObject", "Sketch004")
body.addObject(sketch5)
sketch5.AttachmentSupport = (doc.XZ_Plane, [""])
sketch5.MapMode = "FlatFace"
sketch5.AttachmentOffset = App.Placement(Vector(0, 0, -3), App.Rotation())
sketch5.addGeometry([
    Part.Circle(Vector(-202, 42, 0), Vector(0, 0, 1), 8),
    Part.Circle(Vector(-202, -42, 0), Vector(0, 0, 1), 8),
], False)
sketch5.addConstraint([
    Sketcher.Constraint("Equal", 0, 1),
    Sketcher.Constraint("Symmetric", 0, 3, 1, 3, -1),
    Sketcher.Constraint("Diameter", 0, Q("15 mm")),
    Sketcher.Constraint("DistanceY", -1, 1, 0, 3, Q("42 mm")),
    Sketcher.Constraint("DistanceX", 0, 3, -1, 1, Q("201.5 mm")),
])
pocket4 = doc.addObject("PartDesign::Pocket", "Pocket003")
body.addObject(pocket4)
pocket4.Profile = sketch5
pocket4.Length = 10
pocket4.Reversed = True

# Sketch on XZ plane
sketch6 = doc.addObject("Sketcher::SketchObject", "Sketch005")
body.addObject(sketch6)
sketch6.AttachmentSupport = (doc.XZ_Plane, [""])
sketch6.MapMode = "FlatFace"
sketch6.AttachmentOffset = App.Placement(Vector(0, 0, -3), App.Rotation())
sketch6.addGeometry([
    Part.Circle(Vector(-90, 30, 0), Vector(0, 0, 1), 2),
    Part.Circle(Vector(-90, 10, 0), Vector(0, 0, 1), 2),
    Part.Circle(Vector(-90, -10, 0), Vector(0, 0, 1), 2),
    Part.Circle(Vector(-90, -30, 0), Vector(0, 0, 1), 2),
], False)
sketch6.addConstraint([
    Sketcher.Constraint("Equal", 0, 1),
    Sketcher.Constraint("Equal", 1, 2),
    Sketcher.Constraint("Equal", 2, 3),
    Sketcher.Constraint("Symmetric", 1, 3, 2, 3, -1),
    Sketcher.Constraint("Symmetric", 0, 3, 3, 3, -1),
    Sketcher.Constraint("Vertical", 0, 3, 1, 3),
    Sketcher.Constraint("Diameter", 0, Q("4 mm")),
    Sketcher.Constraint("DistanceX", 0, 3, -1, 1, Q("90 mm")),
    Sketcher.Constraint("DistanceY", -1, 1, 0, 3, Q("30 mm")),
    Sketcher.Constraint("DistanceY", -1, 1, 1, 3, Q("10 mm")),
])
pocket5 = doc.addObject("PartDesign::Pocket", "Pocket004")
body.addObject(pocket5)
pocket5.Profile = sketch6
pocket5.Length = 10
pocket5.Reversed = True

# Sketch on XZ plane
sketch7 = doc.addObject("Sketcher::SketchObject", "Sketch006")
body.addObject(sketch7)
sketch7.AttachmentSupport = (doc.XZ_Plane, [""])
sketch7.MapMode = "FlatFace"
sketch7.AttachmentOffset = App.Placement(Vector(0, 0, -3), App.Rotation())
sketch7.addGeometry([
    Part.LineSegment(Vector(-85, -92, 0), Vector(-85, -89, 0)),  # 0
    Part.LineSegment(Vector(-85, -89, 0), Vector(-55, -89, 0)),  # 1
    Part.LineSegment(Vector(-55, -89, 0), Vector(-55, -92, 0)),  # 2
    Part.LineSegment(Vector(-55, -92, 0), Vector(-85, -92, 0)),  # 3
    Part.Circle(Vector(-30, -67, 0), Vector(0, 0, 1), 2),  # 4
    Part.Circle(Vector(-30, -87, 0), Vector(0, 0, 1), 2),  # 5
    Part.LineSegment(Vector(-55, 89, 0), Vector(-85, 89, 0)),  # 6
    Part.LineSegment(Vector(-85, 89, 0), Vector(-85, 92, 0)),  # 7
    Part.LineSegment(Vector(-85, 92, 0), Vector(-55, 92, 0)),  # 8
    Part.LineSegment(Vector(-55, 92, 0), Vector(-55, 89, 0)),  # 9
    Part.Circle(Vector(-30, 67, 0), Vector(0, 0, 1), 2),  # 10
    Part.Circle(Vector(-30, 87, 0), Vector(0, 0, 1), 2),  # 11
], False)
sketch7.addConstraint([
    Sketcher.Constraint("Coincident", 0, 2, 1, 1),
    Sketcher.Constraint("Coincident", 1, 2, 2, 1),
    Sketcher.Constraint("Coincident", 2, 2, 3, 1),
    Sketcher.Constraint("Coincident", 3, 2, 0, 1),
    Sketcher.Constraint("Coincident", 6, 2, 7, 1),
    Sketcher.Constraint("Coincident", 7, 2, 8, 1),
    Sketcher.Constraint("Coincident", 8, 2, 9, 1),
    Sketcher.Constraint("Coincident", 9, 2, 6, 1),
    Sketcher.Constraint("Vertical", 0),
    Sketcher.Constraint("Horizontal", 1),
    Sketcher.Constraint("Vertical", 2),
    Sketcher.Constraint("Horizontal", 3),
    Sketcher.Constraint("Horizontal", 6),
    Sketcher.Constraint("Vertical", 7),
    Sketcher.Constraint("Horizontal", 8),
    Sketcher.Constraint("Vertical", 9),
    Sketcher.Constraint("Equal", 4, 5),
    Sketcher.Constraint("Equal", 5, 10),
    Sketcher.Constraint("Equal", 10, 11),
    Sketcher.Constraint("Symmetric", 4, 3, 10, 3, -1),
    Sketcher.Constraint("Symmetric", 5, 3, 11, 3, -1),
    Sketcher.Constraint("Symmetric", 0, 2, 6, 2, -1),
    Sketcher.Constraint("Symmetric", 2, 2, 8, 2, -1),
    Sketcher.Constraint("Vertical", 4, 3, 5, 3),
    Sketcher.Constraint("Diameter", 4, Q("4 mm")),
    Sketcher.Constraint("DistanceX", 1, 1, 1, 2, Q("30 mm")),
    Sketcher.Constraint("DistanceY", 0, 1, 0, 2, Q("3 mm")),
    Sketcher.Constraint("DistanceX", 4, 3, -1, 1, Q("30 mm")),
    Sketcher.Constraint("DistanceY", 5, 3, 4, 3, Q("20 mm")),
    Sketcher.Constraint("DistanceY", 4, 3, -1, 1, Q("67 mm")),
    Sketcher.Constraint("DistanceX", 0, 2, -1, 1, Q("85 mm")),
    Sketcher.Constraint("DistanceY", 0, 2, -1, 1, Q("89 mm")),
])
pocket6 = doc.addObject("PartDesign::Pocket", "Pocket005")
body.addObject(pocket6)
pocket6.Profile = sketch7
pocket6.Length = 10
pocket6.Reversed = True
doc.recompute()

fillet = doc.addObject("PartDesign::Fillet", "Fillet")
body.addObject(fillet)
fillet.Base = (pocket6, edges_at(pocket6, [
    (-200, 1.5, 57),
    (-100, 1.5, 57),
    (-100, 1.5, -57),
    (-200, 1.5, -57),
    (-100, 1.5, 102),
    (-200, 1.5, 102),
    (-100, 1.5, -102),
    (-200, 1.5, -102),
]))
fillet.Radius = 6

doc.recompute()
